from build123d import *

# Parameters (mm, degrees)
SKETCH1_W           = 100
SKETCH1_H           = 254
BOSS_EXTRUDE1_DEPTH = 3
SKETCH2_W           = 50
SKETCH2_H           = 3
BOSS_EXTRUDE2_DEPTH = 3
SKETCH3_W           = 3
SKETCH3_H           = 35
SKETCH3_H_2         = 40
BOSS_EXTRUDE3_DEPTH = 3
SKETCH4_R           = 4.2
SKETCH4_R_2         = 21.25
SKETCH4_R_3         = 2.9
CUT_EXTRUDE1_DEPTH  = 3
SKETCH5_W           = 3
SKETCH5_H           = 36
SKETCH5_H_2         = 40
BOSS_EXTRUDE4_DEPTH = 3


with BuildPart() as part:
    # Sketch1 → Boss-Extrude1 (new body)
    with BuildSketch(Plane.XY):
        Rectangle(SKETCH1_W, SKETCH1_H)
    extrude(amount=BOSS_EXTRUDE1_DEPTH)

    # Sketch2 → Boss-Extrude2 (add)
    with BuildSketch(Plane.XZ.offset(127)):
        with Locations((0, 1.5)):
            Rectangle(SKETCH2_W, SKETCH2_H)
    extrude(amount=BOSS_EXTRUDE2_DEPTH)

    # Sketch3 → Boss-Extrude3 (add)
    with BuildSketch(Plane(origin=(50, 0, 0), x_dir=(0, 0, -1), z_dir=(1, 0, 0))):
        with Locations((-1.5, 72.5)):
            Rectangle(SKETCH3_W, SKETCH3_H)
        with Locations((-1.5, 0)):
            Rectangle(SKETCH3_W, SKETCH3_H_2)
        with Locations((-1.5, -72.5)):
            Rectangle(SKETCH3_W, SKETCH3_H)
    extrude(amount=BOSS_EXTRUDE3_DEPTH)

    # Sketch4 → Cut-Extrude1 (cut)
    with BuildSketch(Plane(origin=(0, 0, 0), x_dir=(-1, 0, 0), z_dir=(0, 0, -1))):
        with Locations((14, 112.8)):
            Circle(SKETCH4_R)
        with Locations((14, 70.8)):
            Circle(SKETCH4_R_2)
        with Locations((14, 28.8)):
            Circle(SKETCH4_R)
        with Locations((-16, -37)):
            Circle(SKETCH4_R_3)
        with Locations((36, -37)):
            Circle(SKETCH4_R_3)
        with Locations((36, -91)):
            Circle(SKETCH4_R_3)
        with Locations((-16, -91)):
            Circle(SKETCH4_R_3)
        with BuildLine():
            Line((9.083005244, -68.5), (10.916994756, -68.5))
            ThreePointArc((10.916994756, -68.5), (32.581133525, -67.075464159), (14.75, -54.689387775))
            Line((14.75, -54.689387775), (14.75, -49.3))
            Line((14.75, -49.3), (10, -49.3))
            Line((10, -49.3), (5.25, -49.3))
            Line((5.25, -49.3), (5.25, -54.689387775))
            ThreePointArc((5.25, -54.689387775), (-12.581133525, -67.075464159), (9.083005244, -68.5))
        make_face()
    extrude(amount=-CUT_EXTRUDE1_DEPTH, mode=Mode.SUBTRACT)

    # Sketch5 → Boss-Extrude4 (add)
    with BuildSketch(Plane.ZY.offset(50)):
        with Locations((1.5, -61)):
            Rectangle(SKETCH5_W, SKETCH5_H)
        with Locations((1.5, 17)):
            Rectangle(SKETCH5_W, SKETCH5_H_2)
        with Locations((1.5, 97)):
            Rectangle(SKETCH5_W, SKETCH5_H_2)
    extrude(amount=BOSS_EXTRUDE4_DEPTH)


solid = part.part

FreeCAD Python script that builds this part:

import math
import FreeCAD as App
import Part
import Sketcher
from FreeCAD import Vector


def add_polygon(sketch, points):
    """Adds a closed chain of lines whose ends are joined by coincident constraints."""
    first, n = sketch.GeometryCount, len(points)
    for a, b in zip(points, points[1:] + points[:1]):
        sketch.addGeometry(Part.LineSegment(App.Vector(*a, 0), App.Vector(*b, 0)), False)
    for i in range(n):
        sketch.addConstraint(Sketcher.Constraint("Coincident", first + i, 2, first + (i + 1) % n, 1))

doc = App.newDocument("Part")
body = doc.addObject("PartDesign::Body", "Body")

# Sketch on XY plane
sketch1 = body.newObject("Sketcher::SketchObject", "Sketch")
sketch1.AttachmentSupport = (doc.getObject("XY_Plane"), [""])
sketch1.MapMode = "FlatFace"
add_polygon(sketch1, [(-50, 127), (-50, -127), (50, -127), (50, 127)])  # lines 0-3
sketch1.addConstraint(Sketcher.Constraint("Vertical", 0))
sketch1.addConstraint(Sketcher.Constraint("Horizontal", 1))
sketch1.addConstraint(Sketcher.Constraint("Vertical", 2))
sketch1.addConstraint(Sketcher.Constraint("Horizontal", 3))
sketch1.addConstraint(Sketcher.Constraint("Symmetric", 0, 2, 2, 2, -1, 1))
sketch1.addConstraint(Sketcher.Constraint("DistanceX", 1, 1, 1, 2, 100.0))
sketch1.addConstraint(Sketcher.Constraint("DistanceY", 0, 2, 0, 1, 254.0))
pad1 = body.newObject("PartDesign::Pad", "Pad")
pad1.Profile = sketch1
pad1.Length = 3

# Sketch on XZ plane
sketch2 = body.newObject("Sketcher::SketchObject", "Sketch001")
sketch2.AttachmentSupport = (doc.getObject("XZ_Plane"), [""])
sketch2.MapMode = "FlatFace"
sketch2.AttachmentOffset = App.Placement(Vector(0, 0, 127), App.Rotation())
add_polygon(sketch2, [(-25, 3), (-25, 0), (25, 0), (25, 3)])  # lines 0-3
sketch2.addConstraint(Sketcher.Constraint("Vertical", 0))
sketch2.addConstraint(Sketcher.Constraint("Horizontal", 1))
sketch2.addConstraint(Sketcher.Constraint("Vertical", 2))
sketch2.addConstraint(Sketcher.Constraint("Horizontal", 3))
sketch2.addConstraint(Sketcher.Constraint("Symmetric", 0, 2, 1, 2, -1, 1))
sketch2.addConstraint(Sketcher.Constraint("DistanceX", 1, 1, 1, 2, 50.0))
sketch2.addConstraint(Sketcher.Constraint("DistanceY", 0, 2, 0, 1, 3.0))
pad2 = body.newObject("PartDesign::Pad", "Pad001")
pad2.Profile = sketch2
pad2.Length = 3

# Sketch on YZ plane
sketch3 = body.newObject("Sketcher::SketchObject", "Sketch002")
sketch3.AttachmentSupport = (doc.getObject("YZ_Plane"), [""])
sketch3.MapMode = "FlatFace"
sketch3.AttachmentOffset = App.Placement(Vector(0, 0, 50), App.Rotation())
add_polygon(sketch3, [(90, 3), (55, 3), (55, 0), (90, 0)])  # lines 0-3
add_polygon(sketch3, [(20, 3), (-20, 3), (-20, 0), (20, 0)])  # lines 4-7
add_polygon(sketch3, [(-55, 3), (-90, 3), (-90, 0), (-55, 0)])  # lines 8-11
sketch3.addConstraint(Sketcher.Constraint("Horizontal", 0))
sketch3.addConstraint(Sketcher.Constraint("Vertical", 1))
sketch3.addConstraint(Sketcher.Constraint("Horizontal", 2))
sketch3.addConstraint(Sketcher.Constraint("Vertical", 3))
sketch3.addConstraint(Sketcher.Constraint("Horizontal", 4))
sketch3.addConstraint(Sketcher.Constraint("Vertical", 5))
sketch3.addConstraint(Sketcher.Constraint("Horizontal", 6))
sketch3.addConstraint(Sketcher.Constraint("Vertical", 7))
sketch3.addConstraint(Sketcher.Constraint("Horizontal", 8))
sketch3.addConstraint(Sketcher.Constraint("Vertical", 9))
sketch3.addConstraint(Sketcher.Constraint("Horizontal", 10))
sketch3.addConstraint(Sketcher.Constraint("Vertical", 11))
sketch3.addConstraint(Sketcher.Constraint("Symmetric", 5, 2, 6, 2, -1, 1))
sketch3.addConstraint(Sketcher.Constraint("Symmetric", 2, 2, 9, 2, -1, 1))
sketch3.addConstraint(Sketcher.Constraint("Symmetric", 1, 2, 10, 2, -2))
sketch3.addConstraint(Sketcher.Constraint("Horizontal", 3, 2, 4, 2))
sketch3.addConstraint(Sketcher.Constraint("Horizontal", 7, 2, 8, 2))
sketch3.addConstraint(Sketcher.Constraint("DistanceX", 0, 2, 0, 1, 35.0))
sketch3.addConstraint(Sketcher.Constraint("DistanceX", 4, 2, 4, 1, 40.0))
sketch3.addConstraint(Sketcher.Constraint("DistanceY", 1, 2, 1, 1, 3.0))
sketch3.addConstraint(Sketcher.Constraint("DistanceX", -1, 1, 0, 2, 55.0))
pad3 = body.newObject("PartDesign::Pad", "Pad002")
pad3.Profile = sketch3
pad3.Length = 3

# Sketch on XY plane
sketch4 = body.newObject("Sketcher::SketchObject", "Sketch003")
sketch4.AttachmentSupport = (doc.getObject("XY_Plane"), [""])
sketch4.MapMode = "FlatFace"
sketch4.addGeometry(Part.Circle(Vector(-14, 112.8, 0), Vector(0, 0, 1), 4.2), False)
sketch4.addGeometry(Part.Circle(Vector(-14, 70.8, 0), Vector(0, 0, 1), 21.2), False)
sketch4.addGeometry(Part.Circle(Vector(-14, 28.8, 0), Vector(0, 0, 1), 4.2), False)
sketch4.addGeometry(Part.Circle(Vector(16, -37, 0), Vector(0, 0, 1), 2.9), False)
sketch4.addGeometry(Part.Circle(Vector(-36, -37, 0), Vector(0, 0, 1), 2.9), False)
sketch4.addGeometry(Part.Circle(Vector(-36, -91, 0), Vector(0, 0, 1), 2.9), False)
sketch4.addGeometry(Part.Circle(Vector(16, -91, 0), Vector(0, 0, 1), 2.9), False)
sketch4.addGeometry(Part.LineSegment(Vector(-9.1, -68.5, 0), Vector(-10.9, -68.5, 0)), False)
sketch4.addGeometry(Part.ArcOfCircle(Part.Circle(Vector(-21.5, -64, 0), Vector(0, 0, 1), 11.5), math.radians(54), math.radians(337)), False)
sketch4.addGeometry(Part.LineSegment(Vector(-14.8, -54.7, 0), Vector(-14.8, -49.3, 0)), False)
sketch4.addGeometry(Part.LineSegment(Vector(-14.8, -49.3, 0), Vector(-5.2, -49.3, 0)), False)
sketch4.addGeometry(Part.LineSegment(Vector(-5.2, -49.3, 0), Vector(-5.2, -54.7, 0)), False)
sketch4.addGeometry(Part.ArcOfCircle(Part.Circle(Vector(1.5, -64, 0), Vector(0, 0, 1), 11.5), math.radians(-157), math.radians(126)), False)
sketch4.addConstraint(Sketcher.Constraint("Coincident", 7, 2, 8, 2))
sketch4.addConstraint(Sketcher.Constraint("Coincident", 8, 1, 9, 1))
sketch4.addConstraint(Sketcher.Constraint("Coincident", 9, 2, 10, 1))
sketch4.addConstraint(Sketcher.Constraint("Coincident", 10, 2, 11, 1))
sketch4.addConstraint(Sketcher.Constraint("Coincident", 11, 2, 12, 2))
sketch4.addConstraint(Sketcher.Constraint("Coincident", 12, 1, 7, 1))
sketch4.addConstraint(Sketcher.Constraint("Horizontal", 7))
sketch4.addConstraint(Sketcher.Constraint("Vertical", 9))
sketch4.addConstraint(Sketcher.Constraint("Horizontal", 10))
sketch4.addConstraint(Sketcher.Constraint("Vertical", 11))
sketch4.addConstraint(Sketcher.Constraint("Equal", 0, 2))
sketch4.addConstraint(Sketcher.Constraint("Equal", 3, 4))
sketch4.addConstraint(Sketcher.Constraint("Equal", 4, 5))
sketch4.addConstraint(Sketcher.Constraint("Equal", 5, 6))
sketch4.addConstraint(Sketcher.Constraint("Equal", 8, 12))
sketch4.addConstraint(Sketcher.Constraint("Horizontal", 3, 3, 4, 3))
sketch4.addConstraint(Sketcher.Constraint("Horizontal", 5, 3, 6, 3))
sketch4.addConstraint(Sketcher.Constraint("Horizontal", 8, 3, 12, 3))
sketch4.addConstraint(Sketcher.Constraint("Horizontal", 8, 1, 11, 2))
sketch4.addConstraint(Sketcher.Constraint("Vertical", 0, 3, 1, 3))
sketch4.addConstraint(Sketcher.Constraint("Vertical", 1, 3, 2, 3))
sketch4.addConstraint(Sketcher.Constraint("Vertical", 4, 3, 5, 3))
sketch4.addConstraint(Sketcher.Constraint("Vertical", 3, 3, 6, 3))
sketch4.addConstraint(Sketcher.Constraint("Diameter", 0, 8.4))
sketch4.addConstraint(Sketcher.Constraint("Diameter", 1, 42.5))
sketch4.addConstraint(Sketcher.Constraint("Diameter", 3, 5.8))
sketch4.addConstraint(Sketcher.Constraint("Radius", 8, 11.5))
sketch4.addConstraint(Sketcher.Constraint("DistanceX", 10, 1, 10, 2, 9.5))
sketch4.addConstraint(Sketcher.Constraint("DistanceX", 0, 3, -1, 1, 14.0))
sketch4.addConstraint(Sketcher.Constraint("DistanceX", -1, 1, 3, 3, 16.0))
sketch4.addConstraint(Sketcher.Constraint("DistanceY", 3, 3, -1, 1, 37.0))
sketch4.addConstraint(Sketcher.Constraint("DistanceX", 4, 3, -1, 1, 36.0))
sketch4.addConstraint(Sketcher.Constraint("DistanceY", 5, 3, -1, 1, 91.0))
sketch4.addConstraint(Sketcher.Constraint("DistanceY", 8, 3, -1, 1, 64.0))
sketch4.addConstraint(Sketcher.Constraint("DistanceY", 1, 3, 0, 3, 42.0))
sketch4.addConstraint(Sketcher.Constraint("DistanceY", 2, 3, 1, 3, 42.0))
sketch4.addConstraint(Sketcher.Constraint("DistanceX", 8, 3, 12, 3, 23.0))
sketch4.addConstraint(Sketcher.Constraint("DistanceY", -1, 1, 0, 3, 112.8))
sketch4.addConstraint(Sketcher.Constraint("DistanceX", 8, 3, -1, 1, 21.5))
sketch4.addConstraint(Sketcher.Constraint("DistanceY", 7, 2, -1, 1, 68.5))
sketch4.addConstraint(Sketcher.Constraint("DistanceY", 9, 2, -1, 1, 49.3))
pocket1 = body.newObject("PartDesign::Pocket", "Pocket")
pocket1.Profile = sketch4
pocket1.Length = 3
pocket1.Reversed = True

# Sketch on YZ plane
sketch5 = body.newObject("Sketcher::SketchObject", "Sketch004")
sketch5.AttachmentSupport = (doc.getObject("YZ_Plane"), [""])
sketch5.MapMode = "FlatFace"
sketch5.AttachmentOffset = App.Placement(Vector(0, 0, -50), App.Rotation())
add_polygon(sketch5, [(-43, 0), (-79, 0), (-79, 3), (-43, 3)])  # lines 0-3
add_polygon(sketch5, [(37, 0), (-3, 0), (-3, 3), (37, 3)])  # lines 4-7
add_polygon(sketch5, [(117, 0), (77, 0), (77, 3), (117, 3)])  # lines 8-11
sketch5.addConstraint(Sketcher.Constraint("Horizontal", 0))
sketch5.addConstraint(Sketcher.Constraint("Vertical", 1))
sketch5.addConstraint(Sketcher.Constraint("Horizontal", 2))
sketch5.addConstraint(Sketcher.Constraint("Vertical", 3))
sketch5.addConstraint(Sketcher.Constraint("Horizontal", 4))
sketch5.addConstraint(Sketcher.Constraint("Vertical", 5))
sketch5.addConstraint(Sketcher.Constraint("Horizontal", 6))
sketch5.addConstraint(Sketcher.Constraint("Vertical", 7))
sketch5.addConstraint(Sketcher.Constraint("Horizontal", 8))
sketch5.addConstraint(Sketcher.Constraint("Vertical", 9))
sketch5.addConstraint(Sketcher.Constraint("Horizontal", 10))
sketch5.addConstraint(Sketcher.Constraint("Vertical", 11))
sketch5.addConstraint(Sketcher.Constraint("PointOnObject", 0, 2, -1))
sketch5.addConstraint(Sketcher.Constraint("PointOnObject", 4, 2, -1))
sketch5.addConstraint(Sketcher.Constraint("PointOnObject", 8, 2, -1))
sketch5.addConstraint(Sketcher.Constraint("Horizontal", 2, 2, 5, 2))
sketch5.addConstraint(Sketcher.Constraint("Horizontal", 6, 2, 9, 2))
sketch5.addConstraint(Sketcher.Constraint("Equal", 6, 8))
sketch5.addConstraint(Sketcher.Constraint("DistanceX", 0, 2, 0, 1, 36.0))
sketch5.addConstraint(Sketcher.Constraint("DistanceX", 4, 2, 4, 1, 40.0))
sketch5.addConstraint(Sketcher.Constraint("DistanceY", 1, 1, 1, 2, 3.0))
sketch5.addConstraint(Sketcher.Constraint("DistanceX", 0, 2, -1, 1, 79.0))
sketch5.addConstraint(Sketcher.Constraint("DistanceX", 4, 2, -1, 1, 3.0))
sketch5.addConstraint(Sketcher.Constraint("DistanceX", -1, 1, 8, 2, 77.0))
pad4 = body.newObject("PartDesign::Pad", "Pad003")
pad4.Profile = sketch5
pad4.Length = 3
pad4.Reversed = True

doc.recompute()
